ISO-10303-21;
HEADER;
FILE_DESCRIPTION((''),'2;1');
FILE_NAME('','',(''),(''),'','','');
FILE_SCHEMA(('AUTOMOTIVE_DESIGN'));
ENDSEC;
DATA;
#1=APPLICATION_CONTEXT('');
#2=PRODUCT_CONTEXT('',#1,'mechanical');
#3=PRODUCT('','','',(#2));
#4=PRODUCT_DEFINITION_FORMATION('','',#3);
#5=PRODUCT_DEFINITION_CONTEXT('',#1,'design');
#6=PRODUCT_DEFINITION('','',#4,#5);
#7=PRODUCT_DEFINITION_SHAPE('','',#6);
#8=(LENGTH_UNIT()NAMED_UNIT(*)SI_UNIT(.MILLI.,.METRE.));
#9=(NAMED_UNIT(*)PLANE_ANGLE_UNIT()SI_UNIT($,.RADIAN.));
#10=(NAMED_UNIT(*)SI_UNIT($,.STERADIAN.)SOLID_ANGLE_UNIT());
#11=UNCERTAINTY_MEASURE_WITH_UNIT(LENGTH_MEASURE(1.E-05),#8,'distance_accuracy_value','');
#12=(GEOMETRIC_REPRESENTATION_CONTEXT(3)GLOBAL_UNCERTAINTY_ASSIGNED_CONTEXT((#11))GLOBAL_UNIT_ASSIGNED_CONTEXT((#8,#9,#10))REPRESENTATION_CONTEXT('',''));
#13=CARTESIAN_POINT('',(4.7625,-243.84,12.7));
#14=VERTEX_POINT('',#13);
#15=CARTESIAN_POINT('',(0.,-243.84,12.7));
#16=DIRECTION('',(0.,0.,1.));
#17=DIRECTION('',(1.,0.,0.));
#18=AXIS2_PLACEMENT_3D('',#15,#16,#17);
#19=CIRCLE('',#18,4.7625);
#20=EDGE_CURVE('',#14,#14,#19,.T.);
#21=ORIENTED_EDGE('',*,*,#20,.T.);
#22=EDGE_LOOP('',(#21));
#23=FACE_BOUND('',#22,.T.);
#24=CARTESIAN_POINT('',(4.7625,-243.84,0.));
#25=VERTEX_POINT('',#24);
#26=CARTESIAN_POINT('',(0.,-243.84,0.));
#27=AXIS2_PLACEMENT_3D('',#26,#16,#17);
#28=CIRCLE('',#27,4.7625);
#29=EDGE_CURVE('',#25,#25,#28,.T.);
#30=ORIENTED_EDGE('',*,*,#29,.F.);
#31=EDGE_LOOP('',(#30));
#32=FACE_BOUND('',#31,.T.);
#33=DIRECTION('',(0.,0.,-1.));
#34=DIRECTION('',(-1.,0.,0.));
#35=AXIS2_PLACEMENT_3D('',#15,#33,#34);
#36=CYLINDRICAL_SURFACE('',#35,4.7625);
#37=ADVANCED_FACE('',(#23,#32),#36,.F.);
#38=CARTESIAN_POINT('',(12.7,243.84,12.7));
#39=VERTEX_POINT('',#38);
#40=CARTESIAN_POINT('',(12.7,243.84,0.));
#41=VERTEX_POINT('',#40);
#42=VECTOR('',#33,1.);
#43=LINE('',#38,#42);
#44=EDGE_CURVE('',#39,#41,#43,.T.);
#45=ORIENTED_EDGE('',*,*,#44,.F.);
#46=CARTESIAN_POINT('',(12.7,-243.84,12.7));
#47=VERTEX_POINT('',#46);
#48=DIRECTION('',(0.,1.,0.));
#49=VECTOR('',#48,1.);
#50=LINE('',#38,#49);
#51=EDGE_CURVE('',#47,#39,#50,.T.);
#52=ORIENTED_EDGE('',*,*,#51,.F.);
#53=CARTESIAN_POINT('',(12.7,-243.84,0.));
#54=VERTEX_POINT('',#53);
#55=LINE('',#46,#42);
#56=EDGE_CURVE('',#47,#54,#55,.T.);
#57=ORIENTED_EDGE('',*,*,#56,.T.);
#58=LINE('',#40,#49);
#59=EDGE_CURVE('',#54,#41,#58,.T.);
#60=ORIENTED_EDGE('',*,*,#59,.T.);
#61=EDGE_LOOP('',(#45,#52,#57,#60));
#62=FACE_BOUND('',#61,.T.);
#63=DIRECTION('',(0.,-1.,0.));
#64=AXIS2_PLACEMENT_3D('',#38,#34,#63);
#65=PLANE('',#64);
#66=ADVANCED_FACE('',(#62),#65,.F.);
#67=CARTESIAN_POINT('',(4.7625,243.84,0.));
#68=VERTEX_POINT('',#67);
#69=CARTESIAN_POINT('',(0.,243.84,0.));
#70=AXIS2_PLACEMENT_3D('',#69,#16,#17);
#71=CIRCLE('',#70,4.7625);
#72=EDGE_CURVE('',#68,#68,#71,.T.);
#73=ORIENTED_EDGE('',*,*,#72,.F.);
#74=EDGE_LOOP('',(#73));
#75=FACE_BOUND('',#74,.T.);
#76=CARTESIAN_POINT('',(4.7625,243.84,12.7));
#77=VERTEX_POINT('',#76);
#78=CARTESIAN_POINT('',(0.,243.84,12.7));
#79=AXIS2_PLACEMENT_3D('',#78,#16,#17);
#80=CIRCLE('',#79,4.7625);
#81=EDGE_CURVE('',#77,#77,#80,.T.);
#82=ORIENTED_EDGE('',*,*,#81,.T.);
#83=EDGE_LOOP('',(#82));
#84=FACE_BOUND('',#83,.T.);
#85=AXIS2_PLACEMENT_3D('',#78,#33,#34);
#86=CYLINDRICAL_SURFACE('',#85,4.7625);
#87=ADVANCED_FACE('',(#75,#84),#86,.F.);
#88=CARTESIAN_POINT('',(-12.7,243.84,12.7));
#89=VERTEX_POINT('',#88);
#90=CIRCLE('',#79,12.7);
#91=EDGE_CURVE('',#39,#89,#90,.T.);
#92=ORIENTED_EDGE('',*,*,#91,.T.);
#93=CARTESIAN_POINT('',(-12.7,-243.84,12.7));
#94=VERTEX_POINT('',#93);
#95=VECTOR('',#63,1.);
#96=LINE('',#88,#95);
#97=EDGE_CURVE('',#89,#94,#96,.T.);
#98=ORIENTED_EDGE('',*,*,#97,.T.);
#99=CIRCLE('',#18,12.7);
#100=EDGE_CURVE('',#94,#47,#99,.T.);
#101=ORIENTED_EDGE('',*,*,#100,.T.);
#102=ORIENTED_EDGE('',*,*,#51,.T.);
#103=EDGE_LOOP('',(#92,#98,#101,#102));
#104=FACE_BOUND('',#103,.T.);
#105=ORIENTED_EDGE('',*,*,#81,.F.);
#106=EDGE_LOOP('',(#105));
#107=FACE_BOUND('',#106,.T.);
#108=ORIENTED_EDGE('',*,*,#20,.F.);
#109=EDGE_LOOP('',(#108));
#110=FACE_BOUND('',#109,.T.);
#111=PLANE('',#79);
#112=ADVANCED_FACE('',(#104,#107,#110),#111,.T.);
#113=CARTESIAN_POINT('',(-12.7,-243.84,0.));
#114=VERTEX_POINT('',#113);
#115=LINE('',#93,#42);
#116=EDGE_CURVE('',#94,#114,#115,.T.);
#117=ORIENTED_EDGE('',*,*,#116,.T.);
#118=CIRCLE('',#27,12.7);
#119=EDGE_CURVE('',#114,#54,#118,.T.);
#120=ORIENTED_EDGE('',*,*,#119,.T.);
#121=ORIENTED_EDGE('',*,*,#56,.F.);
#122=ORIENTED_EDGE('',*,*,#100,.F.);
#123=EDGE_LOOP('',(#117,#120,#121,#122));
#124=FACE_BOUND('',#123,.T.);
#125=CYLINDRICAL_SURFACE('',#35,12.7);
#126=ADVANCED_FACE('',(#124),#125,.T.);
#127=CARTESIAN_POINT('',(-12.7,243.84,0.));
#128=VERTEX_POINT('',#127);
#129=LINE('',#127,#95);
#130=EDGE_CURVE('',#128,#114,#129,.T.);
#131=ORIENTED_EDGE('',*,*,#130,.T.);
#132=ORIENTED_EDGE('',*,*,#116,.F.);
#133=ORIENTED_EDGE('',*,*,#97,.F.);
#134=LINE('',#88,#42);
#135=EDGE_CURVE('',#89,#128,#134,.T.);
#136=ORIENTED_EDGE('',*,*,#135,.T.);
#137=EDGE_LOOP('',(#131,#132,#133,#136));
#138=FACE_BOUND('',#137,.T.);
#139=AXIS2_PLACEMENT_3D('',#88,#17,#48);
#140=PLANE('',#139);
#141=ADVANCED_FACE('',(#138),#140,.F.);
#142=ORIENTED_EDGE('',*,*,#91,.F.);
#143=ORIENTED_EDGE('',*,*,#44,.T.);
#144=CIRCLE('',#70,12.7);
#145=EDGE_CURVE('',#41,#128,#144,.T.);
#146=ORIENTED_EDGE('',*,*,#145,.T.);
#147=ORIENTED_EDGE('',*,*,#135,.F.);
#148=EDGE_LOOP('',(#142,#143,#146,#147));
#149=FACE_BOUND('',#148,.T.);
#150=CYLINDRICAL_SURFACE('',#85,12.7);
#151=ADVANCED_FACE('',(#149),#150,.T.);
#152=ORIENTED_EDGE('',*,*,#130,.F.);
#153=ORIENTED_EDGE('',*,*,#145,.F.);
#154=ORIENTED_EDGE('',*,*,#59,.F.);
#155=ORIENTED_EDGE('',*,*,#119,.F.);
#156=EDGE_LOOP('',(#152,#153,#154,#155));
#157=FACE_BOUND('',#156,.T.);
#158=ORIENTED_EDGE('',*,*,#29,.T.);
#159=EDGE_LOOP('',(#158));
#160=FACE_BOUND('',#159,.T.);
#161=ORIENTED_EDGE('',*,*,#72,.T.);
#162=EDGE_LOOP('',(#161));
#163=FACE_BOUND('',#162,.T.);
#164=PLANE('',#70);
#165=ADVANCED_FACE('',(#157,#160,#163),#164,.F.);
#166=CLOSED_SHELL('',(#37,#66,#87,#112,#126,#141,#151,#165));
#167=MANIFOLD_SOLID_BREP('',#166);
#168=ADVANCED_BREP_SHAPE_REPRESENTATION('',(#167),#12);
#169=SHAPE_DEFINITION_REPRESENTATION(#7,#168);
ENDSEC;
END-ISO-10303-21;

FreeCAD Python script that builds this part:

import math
import FreeCAD as App
import Part
import Sketcher
Q = App.Units.Quantity

doc = App.newDocument("Part")
body = doc.addObject("PartDesign::Body", "Body")

sketch1 = body.newObject("Sketcher::SketchObject", "Sketch")
sketch1.AttachmentSupport = (doc.getObject("XY_Plane"), [""])
sketch1.MapMode = "FlatFace"
sketch1.addGeometry(Part.LineSegment(App.Vector(12.7, -243.8, 0), App.Vector(12.7, 243.8, 0)), False)
sketch1.addGeometry(Part.ArcOfCircle(Part.Circle(App.Vector(0, 243.8, 0), App.Vector(0, 0, 1), 12.7), math.radians(0), math.radians(180)), False)
sketch1.addGeometry(Part.LineSegment(App.Vector(-12.7, 243.8, 0), App.Vector(-12.7, -243.8, 0)), False)
sketch1.addGeometry(Part.ArcOfCircle(Part.Circle(App.Vector(0, -243.8, 0), App.Vector(0, 0, 1), 12.7), math.radians(180), math.radians(360)), False)
sketch1.addGeometry(Part.Circle(App.Vector(0, -243.8, 0), App.Vector(0, 0, 1), 4.8), False)
sketch1.addGeometry(Part.Circle(App.Vector(0, 243.8, 0), App.Vector(0, 0, 1), 4.8), False)
sketch1.addConstraint(Sketcher.Constraint("Tangent", 0, 2, 1, 1))
sketch1.addConstraint(Sketcher.Constraint("Tangent", 1, 2, 2, 1))
sketch1.addConstraint(Sketcher.Constraint("Tangent", 2, 2, 3, 1))
sketch1.addConstraint(Sketcher.Constraint("Tangent", 3, 2, 0, 1))
sketch1.addConstraint(Sketcher.Constraint("Vertical", 0))
sketch1.addConstraint(Sketcher.Constraint("Vertical", 2))
sketch1.addConstraint(Sketcher.Constraint("Coincident", 4, 3, 3, 3))
sketch1.addConstraint(Sketcher.Constraint("Coincident", 5, 3, 1, 3))
sketch1.addConstraint(Sketcher.Constraint("Equal", 4, 5))
sketch1.addConstraint(Sketcher.Constraint("Symmetric", 1, 3, 3, 3, -1, 1))
sketch1.addConstraint(Sketcher.Constraint("Radius", 1, Q("0.5 in")))
sketch1.addConstraint(Sketcher.Constraint("Diameter", 4, Q("0.375 in")))
sketch1.addConstraint(Sketcher.Constraint("DistanceY", 0, 1, 0, 2, Q("19.2 in")))
pad1 = body.newObject("PartDesign::Pad", "Pad")
pad1.Profile = sketch1
pad1.Length = Q("0.5 in")

doc.recompute()
